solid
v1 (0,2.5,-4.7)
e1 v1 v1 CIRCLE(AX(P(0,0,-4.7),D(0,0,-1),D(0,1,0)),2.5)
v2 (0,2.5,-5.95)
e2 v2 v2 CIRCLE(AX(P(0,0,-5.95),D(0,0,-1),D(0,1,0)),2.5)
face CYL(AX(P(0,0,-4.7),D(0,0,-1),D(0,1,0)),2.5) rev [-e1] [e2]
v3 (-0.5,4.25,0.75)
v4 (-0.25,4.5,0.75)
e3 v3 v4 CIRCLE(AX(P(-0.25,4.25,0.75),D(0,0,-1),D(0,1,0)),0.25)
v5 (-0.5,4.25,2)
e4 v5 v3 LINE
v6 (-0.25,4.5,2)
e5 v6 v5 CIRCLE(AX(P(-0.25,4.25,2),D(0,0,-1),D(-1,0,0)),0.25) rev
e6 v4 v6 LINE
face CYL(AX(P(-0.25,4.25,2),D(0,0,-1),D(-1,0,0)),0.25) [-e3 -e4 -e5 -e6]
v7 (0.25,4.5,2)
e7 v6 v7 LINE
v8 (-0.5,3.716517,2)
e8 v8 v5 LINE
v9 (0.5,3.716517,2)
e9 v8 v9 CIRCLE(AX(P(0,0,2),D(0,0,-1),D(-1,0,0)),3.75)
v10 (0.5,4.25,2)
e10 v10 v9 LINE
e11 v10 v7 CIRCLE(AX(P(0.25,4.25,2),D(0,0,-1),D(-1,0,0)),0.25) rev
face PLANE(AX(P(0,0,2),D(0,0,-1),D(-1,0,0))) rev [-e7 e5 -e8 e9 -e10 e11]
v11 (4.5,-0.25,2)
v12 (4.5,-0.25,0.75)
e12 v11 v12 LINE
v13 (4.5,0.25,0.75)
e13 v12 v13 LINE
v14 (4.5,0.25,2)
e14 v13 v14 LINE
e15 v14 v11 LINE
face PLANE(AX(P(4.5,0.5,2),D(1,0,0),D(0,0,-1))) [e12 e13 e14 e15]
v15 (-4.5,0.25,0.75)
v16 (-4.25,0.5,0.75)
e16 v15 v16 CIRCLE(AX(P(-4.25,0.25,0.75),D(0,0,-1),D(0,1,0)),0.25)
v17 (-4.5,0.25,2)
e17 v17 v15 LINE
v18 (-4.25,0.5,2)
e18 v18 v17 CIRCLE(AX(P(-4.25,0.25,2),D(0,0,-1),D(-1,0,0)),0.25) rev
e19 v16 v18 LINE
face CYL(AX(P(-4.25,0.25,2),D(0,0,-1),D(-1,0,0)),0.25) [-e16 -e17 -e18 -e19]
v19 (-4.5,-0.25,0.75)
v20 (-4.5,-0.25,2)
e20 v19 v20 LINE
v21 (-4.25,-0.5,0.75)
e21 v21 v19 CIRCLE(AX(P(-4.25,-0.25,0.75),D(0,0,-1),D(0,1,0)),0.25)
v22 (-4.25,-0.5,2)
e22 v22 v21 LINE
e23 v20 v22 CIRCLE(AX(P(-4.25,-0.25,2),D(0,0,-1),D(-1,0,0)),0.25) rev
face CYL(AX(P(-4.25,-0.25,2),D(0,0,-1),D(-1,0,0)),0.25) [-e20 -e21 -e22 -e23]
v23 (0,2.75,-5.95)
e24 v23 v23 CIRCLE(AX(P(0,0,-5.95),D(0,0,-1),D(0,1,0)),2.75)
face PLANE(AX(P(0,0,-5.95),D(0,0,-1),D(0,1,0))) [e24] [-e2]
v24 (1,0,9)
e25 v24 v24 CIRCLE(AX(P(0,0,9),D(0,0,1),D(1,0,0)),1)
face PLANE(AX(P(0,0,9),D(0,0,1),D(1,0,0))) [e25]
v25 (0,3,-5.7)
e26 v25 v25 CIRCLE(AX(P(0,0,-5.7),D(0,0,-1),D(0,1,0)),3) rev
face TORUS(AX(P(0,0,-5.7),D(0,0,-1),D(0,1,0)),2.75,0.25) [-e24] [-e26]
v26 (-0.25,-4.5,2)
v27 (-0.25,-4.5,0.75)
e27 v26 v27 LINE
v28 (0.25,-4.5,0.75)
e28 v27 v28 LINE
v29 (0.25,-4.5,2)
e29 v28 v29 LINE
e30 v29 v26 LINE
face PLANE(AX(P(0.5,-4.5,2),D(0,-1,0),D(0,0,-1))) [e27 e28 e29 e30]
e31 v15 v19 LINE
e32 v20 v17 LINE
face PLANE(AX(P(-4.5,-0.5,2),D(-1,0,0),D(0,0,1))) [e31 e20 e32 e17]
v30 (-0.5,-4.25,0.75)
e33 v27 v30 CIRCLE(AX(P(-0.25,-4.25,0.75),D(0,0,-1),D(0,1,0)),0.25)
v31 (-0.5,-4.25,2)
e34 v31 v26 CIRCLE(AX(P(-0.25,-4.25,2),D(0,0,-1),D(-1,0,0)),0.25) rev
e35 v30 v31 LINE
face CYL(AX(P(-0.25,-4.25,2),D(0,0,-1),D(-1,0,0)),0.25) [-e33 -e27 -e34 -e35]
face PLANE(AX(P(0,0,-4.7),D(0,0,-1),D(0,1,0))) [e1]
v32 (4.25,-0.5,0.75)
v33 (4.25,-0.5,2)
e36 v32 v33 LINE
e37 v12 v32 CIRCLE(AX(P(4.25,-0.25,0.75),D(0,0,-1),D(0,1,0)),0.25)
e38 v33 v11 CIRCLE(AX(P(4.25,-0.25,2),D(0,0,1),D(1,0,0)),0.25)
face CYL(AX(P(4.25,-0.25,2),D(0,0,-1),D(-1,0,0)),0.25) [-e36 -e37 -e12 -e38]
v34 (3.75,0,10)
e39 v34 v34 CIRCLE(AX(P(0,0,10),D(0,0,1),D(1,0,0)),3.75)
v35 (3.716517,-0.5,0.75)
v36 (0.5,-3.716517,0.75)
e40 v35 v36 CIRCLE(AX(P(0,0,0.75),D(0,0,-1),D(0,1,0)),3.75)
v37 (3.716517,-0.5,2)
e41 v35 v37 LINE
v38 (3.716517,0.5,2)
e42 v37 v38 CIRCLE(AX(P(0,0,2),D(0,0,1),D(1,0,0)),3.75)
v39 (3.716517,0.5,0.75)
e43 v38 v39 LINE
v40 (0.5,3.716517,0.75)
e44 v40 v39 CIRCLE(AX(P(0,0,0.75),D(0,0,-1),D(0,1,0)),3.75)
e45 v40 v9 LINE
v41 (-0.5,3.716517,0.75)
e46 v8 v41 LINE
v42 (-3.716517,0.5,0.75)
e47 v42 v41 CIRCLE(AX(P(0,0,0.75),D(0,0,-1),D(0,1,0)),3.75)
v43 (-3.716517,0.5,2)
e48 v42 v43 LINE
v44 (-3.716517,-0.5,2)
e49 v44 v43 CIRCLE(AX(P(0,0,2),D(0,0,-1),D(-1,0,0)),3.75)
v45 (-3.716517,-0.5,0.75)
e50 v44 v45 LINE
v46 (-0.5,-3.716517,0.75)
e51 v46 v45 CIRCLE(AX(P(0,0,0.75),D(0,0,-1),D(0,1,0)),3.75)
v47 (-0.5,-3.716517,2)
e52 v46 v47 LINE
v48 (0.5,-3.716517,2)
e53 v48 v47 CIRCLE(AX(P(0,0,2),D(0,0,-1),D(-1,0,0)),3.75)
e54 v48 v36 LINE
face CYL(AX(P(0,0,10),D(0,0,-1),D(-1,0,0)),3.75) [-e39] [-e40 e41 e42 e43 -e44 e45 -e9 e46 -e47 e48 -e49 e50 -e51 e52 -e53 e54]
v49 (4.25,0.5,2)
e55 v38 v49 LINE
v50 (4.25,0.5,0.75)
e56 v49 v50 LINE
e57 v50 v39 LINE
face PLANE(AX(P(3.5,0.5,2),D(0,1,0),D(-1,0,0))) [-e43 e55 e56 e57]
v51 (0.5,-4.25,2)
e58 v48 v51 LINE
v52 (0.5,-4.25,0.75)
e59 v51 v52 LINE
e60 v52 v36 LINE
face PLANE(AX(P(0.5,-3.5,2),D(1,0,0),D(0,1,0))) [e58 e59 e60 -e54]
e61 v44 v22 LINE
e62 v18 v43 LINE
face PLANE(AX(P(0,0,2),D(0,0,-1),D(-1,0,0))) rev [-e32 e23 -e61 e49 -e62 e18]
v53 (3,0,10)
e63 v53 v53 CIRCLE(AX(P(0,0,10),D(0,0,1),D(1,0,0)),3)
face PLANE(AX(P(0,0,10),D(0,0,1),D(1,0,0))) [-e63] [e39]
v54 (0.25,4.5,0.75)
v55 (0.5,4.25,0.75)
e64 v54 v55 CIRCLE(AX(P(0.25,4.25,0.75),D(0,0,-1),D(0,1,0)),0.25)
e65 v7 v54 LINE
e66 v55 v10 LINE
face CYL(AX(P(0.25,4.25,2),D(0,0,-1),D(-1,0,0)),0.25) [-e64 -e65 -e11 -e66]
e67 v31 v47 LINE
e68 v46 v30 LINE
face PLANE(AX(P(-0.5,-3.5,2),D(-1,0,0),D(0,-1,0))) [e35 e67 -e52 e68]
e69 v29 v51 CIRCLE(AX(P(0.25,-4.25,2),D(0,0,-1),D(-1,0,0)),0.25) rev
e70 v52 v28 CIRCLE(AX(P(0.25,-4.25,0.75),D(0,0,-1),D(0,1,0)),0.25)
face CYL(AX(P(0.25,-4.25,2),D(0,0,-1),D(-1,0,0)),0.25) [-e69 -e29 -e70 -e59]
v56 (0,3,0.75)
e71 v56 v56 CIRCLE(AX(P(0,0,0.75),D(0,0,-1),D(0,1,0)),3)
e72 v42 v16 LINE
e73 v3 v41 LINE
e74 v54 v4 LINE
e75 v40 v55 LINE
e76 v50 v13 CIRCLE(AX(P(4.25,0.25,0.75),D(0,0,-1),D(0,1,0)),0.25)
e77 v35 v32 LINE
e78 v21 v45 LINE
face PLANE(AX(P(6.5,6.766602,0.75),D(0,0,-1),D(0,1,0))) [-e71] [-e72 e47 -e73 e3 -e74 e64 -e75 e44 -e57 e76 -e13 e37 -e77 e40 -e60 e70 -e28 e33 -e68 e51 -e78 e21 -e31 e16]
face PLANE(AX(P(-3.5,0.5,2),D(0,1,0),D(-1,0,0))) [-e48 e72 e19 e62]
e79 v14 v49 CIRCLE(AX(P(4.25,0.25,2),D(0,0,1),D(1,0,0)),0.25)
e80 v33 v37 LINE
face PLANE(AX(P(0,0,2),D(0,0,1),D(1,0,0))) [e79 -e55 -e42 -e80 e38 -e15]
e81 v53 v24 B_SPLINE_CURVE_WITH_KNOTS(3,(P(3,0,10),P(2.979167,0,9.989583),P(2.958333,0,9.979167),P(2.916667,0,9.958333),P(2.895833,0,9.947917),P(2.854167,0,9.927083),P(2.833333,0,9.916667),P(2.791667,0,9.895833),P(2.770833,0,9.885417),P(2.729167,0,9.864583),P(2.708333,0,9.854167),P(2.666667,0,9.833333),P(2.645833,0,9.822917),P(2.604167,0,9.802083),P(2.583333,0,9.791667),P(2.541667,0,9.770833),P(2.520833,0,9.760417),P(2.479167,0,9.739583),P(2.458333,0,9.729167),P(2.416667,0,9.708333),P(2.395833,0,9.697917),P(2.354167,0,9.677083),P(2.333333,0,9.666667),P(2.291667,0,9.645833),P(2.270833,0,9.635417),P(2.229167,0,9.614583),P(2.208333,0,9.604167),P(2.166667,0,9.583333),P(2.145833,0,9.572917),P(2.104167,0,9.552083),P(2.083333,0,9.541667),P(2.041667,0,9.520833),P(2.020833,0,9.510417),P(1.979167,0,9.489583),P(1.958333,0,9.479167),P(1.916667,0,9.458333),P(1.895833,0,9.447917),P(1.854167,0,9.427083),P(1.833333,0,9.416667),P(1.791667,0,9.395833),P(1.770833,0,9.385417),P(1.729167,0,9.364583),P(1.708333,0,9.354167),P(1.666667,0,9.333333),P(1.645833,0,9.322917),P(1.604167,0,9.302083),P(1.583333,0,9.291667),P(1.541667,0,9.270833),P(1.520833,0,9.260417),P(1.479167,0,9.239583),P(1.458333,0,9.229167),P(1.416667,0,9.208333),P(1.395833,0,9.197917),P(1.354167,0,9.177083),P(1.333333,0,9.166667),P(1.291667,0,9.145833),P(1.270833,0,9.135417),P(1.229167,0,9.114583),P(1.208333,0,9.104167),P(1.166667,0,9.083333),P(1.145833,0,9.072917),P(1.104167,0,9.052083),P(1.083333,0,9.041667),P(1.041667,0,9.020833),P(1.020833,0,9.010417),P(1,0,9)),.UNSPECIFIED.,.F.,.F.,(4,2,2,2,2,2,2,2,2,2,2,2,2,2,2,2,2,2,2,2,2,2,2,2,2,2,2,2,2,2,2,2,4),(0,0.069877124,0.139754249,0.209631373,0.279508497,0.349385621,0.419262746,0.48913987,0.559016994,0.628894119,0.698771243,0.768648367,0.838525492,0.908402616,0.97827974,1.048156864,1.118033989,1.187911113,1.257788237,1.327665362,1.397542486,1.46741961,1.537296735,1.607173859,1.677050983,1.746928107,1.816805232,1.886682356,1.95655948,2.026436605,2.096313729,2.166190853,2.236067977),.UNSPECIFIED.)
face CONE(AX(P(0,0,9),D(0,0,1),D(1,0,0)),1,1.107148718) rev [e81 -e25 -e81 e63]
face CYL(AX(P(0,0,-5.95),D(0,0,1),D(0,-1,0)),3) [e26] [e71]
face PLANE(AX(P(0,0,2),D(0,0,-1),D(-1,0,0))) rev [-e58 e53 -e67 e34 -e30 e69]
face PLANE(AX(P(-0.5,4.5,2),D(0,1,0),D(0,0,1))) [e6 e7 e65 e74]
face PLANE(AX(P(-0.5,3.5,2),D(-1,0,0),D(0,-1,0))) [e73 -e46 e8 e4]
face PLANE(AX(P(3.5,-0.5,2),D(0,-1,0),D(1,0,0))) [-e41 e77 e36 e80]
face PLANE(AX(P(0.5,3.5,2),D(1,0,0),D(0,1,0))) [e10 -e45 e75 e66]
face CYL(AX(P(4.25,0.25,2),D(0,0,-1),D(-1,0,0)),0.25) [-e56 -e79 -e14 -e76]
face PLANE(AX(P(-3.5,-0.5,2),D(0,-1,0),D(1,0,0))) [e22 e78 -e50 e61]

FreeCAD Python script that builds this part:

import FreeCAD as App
import Part
import Sketcher
from FreeCAD import Vector


def edges_at(feature, points):
    """Names of the edges that pass closest to the given points."""
    edges = feature.Shape.Edges
    near = lambda p: min(range(len(edges)), key=lambda i: edges[i].distToShape(Part.Vertex(*p))[0])
    return sorted({f"Edge{near(p) + 1}" for p in points})


def add_polygon(sketch, points):
    """Adds a closed chain of lines whose ends are joined by coincident constraints."""
    first, n = sketch.GeometryCount, len(points)
    for a, b in zip(points, points[1:] + points[:1]):
        sketch.addGeometry(Part.LineSegment(App.Vector(*a, 0), App.Vector(*b, 0)), False)
    for i in range(n):
        sketch.addConstraint(Sketcher.Constraint("Coincident", first + i, 2, first + (i + 1) % n, 1))

doc = App.newDocument("Part")
body = doc.addObject("PartDesign::Body", "Body")

# Sketch on XY plane
sketch1 = body.newObject("Sketcher::SketchObject", "Sketch")
sketch1.AttachmentSupport = (doc.getObject("XY_Plane"), [""])
sketch1.MapMode = "FlatFace"
sketch1.addGeometry(Part.Circle(Vector(0, 0, 0), Vector(0, 0, 1), 3.8), False)
sketch1.addConstraint([
    Sketcher.Constraint("Coincident", 0, 3, -1, 1),
    Sketcher.Constraint("Diameter", 0, 7.5),
])
pad1 = body.newObject("PartDesign::Pad", "Pad")
pad1.Profile = sketch1
pad1.Length = 10

# Sketch on XZ plane
sketch2 = body.newObject("Sketcher::SketchObject", "Sketch001")
sketch2.AttachmentSupport = (doc.getObject("XZ_Plane"), [""])
sketch2.MapMode = "FlatFace"
add_polygon(sketch2, [(-3, 10), (0, 10), (0, 9), (-1, 9)])  # lines 0-3
sketch2.addConstraint([
    Sketcher.Constraint("Horizontal", 0),
    Sketcher.Constraint("Vertical", 1),
    Sketcher.Constraint("Horizontal", 2),
    Sketcher.Constraint("PointOnObject", 0, 2, -2),
    Sketcher.Constraint("Equal", 2, 1),
    Sketcher.Constraint("DistanceX", 0, 1, 0, 2, 3.0),
    Sketcher.Constraint("DistanceX", 2, 2, 2, 1, 1.0),
    Sketcher.Constraint("DistanceY", -1, 1, 0, 2, 10.0),
])
groove = body.newObject("PartDesign::Groove", "Groove")
groove.Profile = sketch2
groove.ReferenceAxis = (sketch2, ["V_Axis"])
groove.Angle = 360

# Sketch on XY plane
sketch3 = body.newObject("Sketcher::SketchObject", "Sketch002")
sketch3.AttachmentSupport = (doc.getObject("XY_Plane"), [""])
sketch3.MapMode = "FlatFace"
add_polygon(sketch3, [(0.5, 4.5), (0.5, 3.5), (-0.5, 3.5), (-0.5, 4.5)])  # lines 0-3
add_polygon(sketch3, [(4.5, 0.5), (4.5, -0.5), (3.5, -0.5), (3.5, 0.5)])  # lines 4-7
add_polygon(sketch3, [(-3.5, 0.5), (-3.5, -0.5), (-4.5, -0.5), (-4.5, 0.5)])  # lines 8-11
add_polygon(sketch3, [(0.5, -3.5), (0.5, -4.5), (-0.5, -4.5), (-0.5, -3.5)])  # lines 12-15
sketch3.addConstraint([
    Sketcher.Constraint("Vertical", 0),
    Sketcher.Constraint("Horizontal", 1),
    Sketcher.Constraint("Vertical", 2),
    Sketcher.Constraint("Horizontal", 3),
    Sketcher.Constraint("Vertical", 4),
    Sketcher.Constraint("Horizontal", 5),
    Sketcher.Constraint("Vertical", 6),
    Sketcher.Constraint("Horizontal", 7),
    Sketcher.Constraint("Vertical", 8),
    Sketcher.Constraint("Horizontal", 9),
    Sketcher.Constraint("Vertical", 10),
    Sketcher.Constraint("Horizontal", 11),
    Sketcher.Constraint("Vertical", 12),
    Sketcher.Constraint("Horizontal", 13),
    Sketcher.Constraint("Vertical", 14),
    Sketcher.Constraint("Horizontal", 15),
    Sketcher.Constraint("Symmetric", 6, 2, 8, 2, -1, 1),
    Sketcher.Constraint("Symmetric", 4, 2, 10, 2, -1, 1),
    Sketcher.Constraint("Symmetric", 2, 2, 12, 2, -1, 1),
    Sketcher.Constraint("Symmetric", 0, 2, 14, 2, -1, 1),
    Sketcher.Constraint("Horizontal", 5, 2, 8, 2),
    Sketcher.Constraint("Vertical", 3, 2, 12, 2),
    Sketcher.Constraint("Equal", 3, 5),
    Sketcher.Constraint("Equal", 15, 0),
    Sketcher.Constraint("Equal", 2, 4),
    Sketcher.Constraint("DistanceX", 1, 2, 1, 1, 1.0),
    Sketcher.Constraint("DistanceX", 0, 2, 4, 2, 4.0),
    Sketcher.Constraint("DistanceY", 4, 2, 0, 2, 4.0),
])
pad2 = body.newObject("PartDesign::Pad", "Pad001")
pad2.Profile = sketch3
pad2.Length = 2

# Sketch on YZ plane
sketch4 = body.newObject("Sketcher::SketchObject", "Sketch003")
sketch4.AttachmentSupport = (doc.getObject("YZ_Plane"), [""])
sketch4.MapMode = "FlatFace"
add_polygon(sketch4, [(6.8, 0.8), (-6.5, 0.8), (-6.5, -2.3), (6.8, -2.3)])  # lines 0-3
sketch4.addConstraint([
    Sketcher.Constraint("Horizontal", 0),
    Sketcher.Constraint("Vertical", 1),
    Sketcher.Constraint("Horizontal", 2),
    Sketcher.Constraint("Vertical", 3),
    Sketcher.Constraint("DistanceY", -1, 1, 0, 2, 0.75),
    Sketcher.Constraint("DistanceX", 0, 2, 0, 1, 13.244386),
    Sketcher.Constraint("DistanceY", 1, 2, 1, 1, 3.094483),
    Sketcher.Constraint("DistanceX", 0, 2, -1, 1, 6.477784),
])
pocket1 = body.newObject("PartDesign::Pocket", "Pocket")
pocket1.Profile = sketch4
pocket1.Type = "ThroughAll"
pocket1.Midplane = True

# Sketch on XY plane
sketch5 = body.newObject("Sketcher::SketchObject", "Sketch004")
sketch5.AttachmentSupport = (doc.getObject("XY_Plane"), [""])
sketch5.MapMode = "FlatFace"
sketch5.AttachmentOffset = App.Placement(Vector(0, 0, 0.75), App.Rotation())
sketch5.addGeometry(Part.Circle(Vector(0, 0, 0), Vector(0, 0, 1), 3), False)
sketch5.addConstraint([
    Sketcher.Constraint("Coincident", 0, 3, -1, 1),
    Sketcher.Constraint("Diameter", 0, 6.0),
])
pad3 = body.newObject("PartDesign::Pad", "Pad002")
pad3.Profile = sketch5
pad3.Length = 6.7
pad3.Reversed = True

# Sketch on XY plane
sketch6 = body.newObject("Sketcher::SketchObject", "Sketch005")
sketch6.AttachmentSupport = (doc.getObject("XY_Plane"), [""])
sketch6.MapMode = "FlatFace"
sketch6.AttachmentOffset = App.Placement(Vector(0, 0, -5.95), App.Rotation())
sketch6.addGeometry(Part.Circle(Vector(0, 0, 0), Vector(0, 0, 1), 2.5), False)
sketch6.addConstraint([
    Sketcher.Constraint("Coincident", 0, 3, -1, 1),
    Sketcher.Constraint("Diameter", 0, 5.0),
])
pocket2 = body.newObject("PartDesign::Pocket", "Pocket001")
pocket2.Profile = sketch6
pocket2.Length = 1.25
pocket2.Reversed = True
doc.recompute()

fillet = body.newObject("PartDesign::Fillet", "Fillet")
fillet.Base = (pocket2, edges_at(pocket2, [(0, -3, -5.95)]))
fillet.Radius = 0.25
doc.recompute()

fillet2 = body.newObject("PartDesign::Fillet", "Fillet001")
fillet2.Base = (fillet, edges_at(fillet, [
    (4.5, 0.5, 1.375),
    (4.5, -0.5, 1.375),
    (-0.5, 4.5, 1.375),
    (0.5, 4.5, 1.375),
    (-4.5, -0.5, 1.375),
    (-4.5, 0.5, 1.375),
    (0.5, -4.5, 1.375),
    (-0.5, -4.5, 1.375),
]))
fillet2.Radius = 0.25

doc.recompute()
